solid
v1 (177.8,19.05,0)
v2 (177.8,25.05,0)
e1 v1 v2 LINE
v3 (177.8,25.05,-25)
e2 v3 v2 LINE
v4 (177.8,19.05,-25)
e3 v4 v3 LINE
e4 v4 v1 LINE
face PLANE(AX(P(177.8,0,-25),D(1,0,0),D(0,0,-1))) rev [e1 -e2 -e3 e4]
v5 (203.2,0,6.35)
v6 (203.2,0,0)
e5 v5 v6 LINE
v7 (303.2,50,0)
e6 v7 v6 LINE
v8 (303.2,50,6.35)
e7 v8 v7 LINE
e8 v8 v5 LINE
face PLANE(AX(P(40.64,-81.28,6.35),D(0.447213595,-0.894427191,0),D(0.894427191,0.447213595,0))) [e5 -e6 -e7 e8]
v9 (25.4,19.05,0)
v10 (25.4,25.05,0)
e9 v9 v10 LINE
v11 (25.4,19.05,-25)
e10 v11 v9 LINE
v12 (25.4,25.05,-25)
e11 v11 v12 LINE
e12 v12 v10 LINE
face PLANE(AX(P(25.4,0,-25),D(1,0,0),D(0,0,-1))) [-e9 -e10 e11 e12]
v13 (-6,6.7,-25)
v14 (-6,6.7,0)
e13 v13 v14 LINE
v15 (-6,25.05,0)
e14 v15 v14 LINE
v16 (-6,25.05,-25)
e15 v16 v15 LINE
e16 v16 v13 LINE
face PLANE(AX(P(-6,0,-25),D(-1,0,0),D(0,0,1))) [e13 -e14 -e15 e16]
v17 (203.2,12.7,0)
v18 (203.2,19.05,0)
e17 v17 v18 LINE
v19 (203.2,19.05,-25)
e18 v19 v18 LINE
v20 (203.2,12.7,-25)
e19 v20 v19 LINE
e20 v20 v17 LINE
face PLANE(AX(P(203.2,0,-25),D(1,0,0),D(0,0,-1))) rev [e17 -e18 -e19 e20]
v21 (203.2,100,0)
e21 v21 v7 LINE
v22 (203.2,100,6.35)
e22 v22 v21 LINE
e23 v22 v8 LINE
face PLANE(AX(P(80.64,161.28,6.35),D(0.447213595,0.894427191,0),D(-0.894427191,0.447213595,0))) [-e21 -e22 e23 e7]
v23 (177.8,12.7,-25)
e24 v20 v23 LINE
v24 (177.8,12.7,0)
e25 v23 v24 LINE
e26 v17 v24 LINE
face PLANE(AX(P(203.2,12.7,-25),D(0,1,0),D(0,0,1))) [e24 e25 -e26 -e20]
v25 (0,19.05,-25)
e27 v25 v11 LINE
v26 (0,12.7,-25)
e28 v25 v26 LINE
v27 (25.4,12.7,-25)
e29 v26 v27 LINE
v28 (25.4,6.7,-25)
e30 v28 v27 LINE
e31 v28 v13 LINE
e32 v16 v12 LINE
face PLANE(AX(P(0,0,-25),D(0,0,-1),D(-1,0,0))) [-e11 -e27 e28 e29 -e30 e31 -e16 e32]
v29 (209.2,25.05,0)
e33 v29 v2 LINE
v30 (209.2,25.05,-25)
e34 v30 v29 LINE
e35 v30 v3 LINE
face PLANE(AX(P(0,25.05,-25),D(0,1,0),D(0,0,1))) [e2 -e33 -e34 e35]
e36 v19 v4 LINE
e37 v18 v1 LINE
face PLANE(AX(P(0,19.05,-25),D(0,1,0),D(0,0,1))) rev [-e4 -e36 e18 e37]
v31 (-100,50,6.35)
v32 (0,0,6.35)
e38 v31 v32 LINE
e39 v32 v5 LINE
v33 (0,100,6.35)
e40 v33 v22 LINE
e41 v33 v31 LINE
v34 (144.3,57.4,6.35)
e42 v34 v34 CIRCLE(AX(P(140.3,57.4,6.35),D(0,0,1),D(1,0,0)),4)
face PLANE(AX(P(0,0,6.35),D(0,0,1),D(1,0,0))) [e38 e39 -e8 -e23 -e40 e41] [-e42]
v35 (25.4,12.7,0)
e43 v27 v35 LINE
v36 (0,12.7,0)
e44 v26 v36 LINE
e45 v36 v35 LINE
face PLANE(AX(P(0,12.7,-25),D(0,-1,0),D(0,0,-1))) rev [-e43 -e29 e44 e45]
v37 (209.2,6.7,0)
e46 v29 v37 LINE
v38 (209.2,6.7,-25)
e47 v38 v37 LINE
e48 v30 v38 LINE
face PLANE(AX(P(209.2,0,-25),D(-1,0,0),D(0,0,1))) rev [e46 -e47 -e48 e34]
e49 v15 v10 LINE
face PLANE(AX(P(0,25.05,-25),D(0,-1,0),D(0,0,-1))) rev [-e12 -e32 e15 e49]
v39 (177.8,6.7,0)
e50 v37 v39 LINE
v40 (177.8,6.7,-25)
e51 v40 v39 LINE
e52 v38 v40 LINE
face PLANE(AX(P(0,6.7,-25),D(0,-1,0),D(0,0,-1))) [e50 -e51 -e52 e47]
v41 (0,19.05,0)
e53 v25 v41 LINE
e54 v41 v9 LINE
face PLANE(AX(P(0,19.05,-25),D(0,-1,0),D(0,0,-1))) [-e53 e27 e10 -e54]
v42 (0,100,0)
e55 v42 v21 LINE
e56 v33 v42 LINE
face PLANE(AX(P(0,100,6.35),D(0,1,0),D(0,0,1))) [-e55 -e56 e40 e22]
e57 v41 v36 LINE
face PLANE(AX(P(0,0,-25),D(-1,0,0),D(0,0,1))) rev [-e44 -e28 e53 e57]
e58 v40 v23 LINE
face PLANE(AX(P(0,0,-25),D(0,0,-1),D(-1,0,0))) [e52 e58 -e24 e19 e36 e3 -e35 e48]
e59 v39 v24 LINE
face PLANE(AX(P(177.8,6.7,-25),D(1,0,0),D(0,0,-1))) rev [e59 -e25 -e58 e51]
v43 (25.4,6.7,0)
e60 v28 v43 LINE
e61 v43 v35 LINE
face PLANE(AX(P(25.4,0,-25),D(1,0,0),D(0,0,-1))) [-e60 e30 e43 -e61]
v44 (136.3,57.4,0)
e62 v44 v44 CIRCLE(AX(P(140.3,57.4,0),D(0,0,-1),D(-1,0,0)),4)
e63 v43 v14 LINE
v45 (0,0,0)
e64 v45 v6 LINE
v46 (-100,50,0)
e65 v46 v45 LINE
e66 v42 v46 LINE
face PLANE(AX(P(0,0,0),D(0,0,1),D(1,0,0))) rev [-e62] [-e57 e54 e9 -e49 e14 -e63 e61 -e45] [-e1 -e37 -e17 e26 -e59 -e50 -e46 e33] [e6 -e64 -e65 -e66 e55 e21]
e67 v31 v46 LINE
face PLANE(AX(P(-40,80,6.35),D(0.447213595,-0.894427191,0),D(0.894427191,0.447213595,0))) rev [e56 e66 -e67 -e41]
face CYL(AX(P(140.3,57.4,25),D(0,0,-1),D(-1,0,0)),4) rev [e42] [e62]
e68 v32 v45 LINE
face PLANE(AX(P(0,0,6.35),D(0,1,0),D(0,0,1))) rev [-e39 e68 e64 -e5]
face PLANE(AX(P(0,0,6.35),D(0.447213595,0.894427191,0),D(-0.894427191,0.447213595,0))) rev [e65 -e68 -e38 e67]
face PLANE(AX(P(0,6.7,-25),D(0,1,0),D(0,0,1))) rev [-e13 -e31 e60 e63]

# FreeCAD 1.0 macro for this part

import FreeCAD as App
import Part
import Sketcher
from FreeCAD import Vector
Q = App.Units.Quantity

doc = App.newDocument("Part")
body = doc.addObject("PartDesign::Body", "Body")

sketch1 = body.newObject("Sketcher::SketchObject", "Sketch")
sketch1.AttachmentSupport = (doc.getObject("XY_Plane"), [""])
sketch1.MapMode = "FlatFace"
sketch1.addGeometry(Part.LineSegment(Vector(0, 0, 0), Vector(203.2, 0, 0)), False)
sketch1.addGeometry(Part.LineSegment(Vector(203.2, 0, 0), Vector(303.2, 50, 0)), False)
sketch1.addGeometry(Part.LineSegment(Vector(303.2, 50, 0), Vector(203.2, 100, 0)), False)
sketch1.addGeometry(Part.LineSegment(Vector(203.2, 100, 0), Vector(0, 100, 0)), False)
sketch1.addGeometry(Part.LineSegment(Vector(0, 100, 0), Vector(-100, 50, 0)), False)
sketch1.addGeometry(Part.LineSegment(Vector(-100, 50, 0), Vector(0, 0, 0)), False)
sketch1.addConstraint(Sketcher.Constraint("Coincident", 0, 2, 1, 1))
sketch1.addConstraint(Sketcher.Constraint("Coincident", 1, 2, 2, 1))
sketch1.addConstraint(Sketcher.Constraint("Coincident", 2, 2, 3, 1))
sketch1.addConstraint(Sketcher.Constraint("Coincident", 3, 2, 4, 1))
sketch1.addConstraint(Sketcher.Constraint("Coincident", 4, 2, 5, 1))
sketch1.addConstraint(Sketcher.Constraint("Coincident", 5, 2, 0, 1))
sketch1.addConstraint(Sketcher.Constraint("Horizontal", 0))
sketch1.addConstraint(Sketcher.Constraint("Horizontal", 3))
sketch1.addConstraint(Sketcher.Constraint("Coincident", 5, 2, -1, 1))
sketch1.addConstraint(Sketcher.Constraint("PointOnObject", 3, 2, -2))
sketch1.addConstraint(Sketcher.Constraint("Parallel", 1, 4))
sketch1.addConstraint(Sketcher.Constraint("Parallel", 2, 5))
sketch1.addConstraint(Sketcher.Constraint("Horizontal", 1, 2, 4, 2))
sketch1.addConstraint(Sketcher.Constraint("Vertical", 0, 2, 2, 2))
sketch1.addConstraint(Sketcher.Constraint("DistanceX", 0, 1, 0, 2, Q("203.2 mm")))
sketch1.addConstraint(Sketcher.Constraint("DistanceY", -1, 1, 1, 2, Q("50 mm")))
sketch1.addConstraint(Sketcher.Constraint("DistanceX", 4, 2, -1, 1, Q("100 mm")))
pad1 = body.newObject("PartDesign::Pad", "Pad")
pad1.Profile = sketch1
pad1.Length = 6.35

sketch2 = body.newObject("Sketcher::SketchObject", "Sketch001")
sketch2.AttachmentSupport = (doc.getObject("XY_Plane"), [""])
sketch2.MapMode = "FlatFace"
sketch2.addGeometry(Part.LineSegment(Vector(177.8, 12.7, 0), Vector(203.2, 12.7, 0)), False)
sketch2.addGeometry(Part.LineSegment(Vector(203.2, 12.7, 0), Vector(203.2, 19.05, 0)), False)
sketch2.addGeometry(Part.LineSegment(Vector(203.2, 19.05, 0), Vector(177.8, 19.05, 0)), False)
sketch2.addGeometry(Part.LineSegment(Vector(177.8, 19.05, 0), Vector(177.8, 25.05, 0)), False)
sketch2.addGeometry(Part.LineSegment(Vector(177.8, 25.05, 0), Vector(209.2, 25.05, 0)), False)
sketch2.addGeometry(Part.LineSegment(Vector(209.2, 25.05, 0), Vector(209.2, 6.7, 0)), False)
sketch2.addGeometry(Part.LineSegment(Vector(209.2, 6.7, 0), Vector(177.8, 6.7, 0)), False)
sketch2.addGeometry(Part.LineSegment(Vector(177.8, 6.7, 0), Vector(177.8, 12.7, 0)), False)
sketch2.addGeometry(Part.LineSegment(Vector(-6, 6.7, 0), Vector(-6, 25.05, 0)), False)
sketch2.addGeometry(Part.LineSegment(Vector(-6, 25.05, 0), Vector(25.4, 25.05, 0)), False)
sketch2.addGeometry(Part.LineSegment(Vector(25.4, 25.05, 0), Vector(25.4, 19.05, 0)), False)
sketch2.addGeometry(Part.LineSegment(Vector(25.4, 19.05, 0), Vector(0, 19.05, 0)), False)
sketch2.addGeometry(Part.LineSegment(Vector(0, 19.05, 0), Vector(0, 12.7, 0)), False)
sketch2.addGeometry(Part.LineSegment(Vector(0, 12.7, 0), Vector(25.4, 12.7, 0)), False)
sketch2.addGeometry(Part.LineSegment(Vector(25.4, 12.7, 0), Vector(25.4, 6.7, 0)), False)
sketch2.addGeometry(Part.LineSegment(Vector(25.4, 6.7, 0), Vector(-6, 6.7, 0)), False)
sketch2.addConstraint(Sketcher.Constraint("Coincident", 0, 2, 1, 1))
sketch2.addConstraint(Sketcher.Constraint("Coincident", 1, 2, 2, 1))
sketch2.addConstraint(Sketcher.Constraint("Coincident", 2, 2, 3, 1))
sketch2.addConstraint(Sketcher.Constraint("Coincident", 3, 2, 4, 1))
sketch2.addConstraint(Sketcher.Constraint("Coincident", 4, 2, 5, 1))
sketch2.addConstraint(Sketcher.Constraint("Coincident", 5, 2, 6, 1))
sketch2.addConstraint(Sketcher.Constraint("Coincident", 6, 2, 7, 1))
sketch2.addConstraint(Sketcher.Constraint("Coincident", 7, 2, 0, 1))
sketch2.addConstraint(Sketcher.Constraint("Coincident", 8, 2, 9, 1))
sketch2.addConstraint(Sketcher.Constraint("Coincident", 9, 2, 10, 1))
sketch2.addConstraint(Sketcher.Constraint("Coincident", 10, 2, 11, 1))
sketch2.addConstraint(Sketcher.Constraint("Coincident", 11, 2, 12, 1))
sketch2.addConstraint(Sketcher.Constraint("Coincident", 12, 2, 13, 1))
sketch2.addConstraint(Sketcher.Constraint("Coincident", 13, 2, 14, 1))
sketch2.addConstraint(Sketcher.Constraint("Coincident", 14, 2, 15, 1))
sketch2.addConstraint(Sketcher.Constraint("Coincident", 15, 2, 8, 1))
sketch2.addConstraint(Sketcher.Constraint("Horizontal", 0))
sketch2.addConstraint(Sketcher.Constraint("Vertical", 1))
sketch2.addConstraint(Sketcher.Constraint("Horizontal", 2))
sketch2.addConstraint(Sketcher.Constraint("Vertical", 3))
sketch2.addConstraint(Sketcher.Constraint("Horizontal", 4))
sketch2.addConstraint(Sketcher.Constraint("Vertical", 5))
sketch2.addConstraint(Sketcher.Constraint("Horizontal", 6))
sketch2.addConstraint(Sketcher.Constraint("Vertical", 7))
sketch2.addConstraint(Sketcher.Constraint("Vertical", 8))
sketch2.addConstraint(Sketcher.Constraint("Horizontal", 9))
sketch2.addConstraint(Sketcher.Constraint("Vertical", 10))
sketch2.addConstraint(Sketcher.Constraint("Horizontal", 11))
sketch2.addConstraint(Sketcher.Constraint("Vertical", 12))
sketch2.addConstraint(Sketcher.Constraint("Horizontal", 13))
sketch2.addConstraint(Sketcher.Constraint("Vertical", 14))
sketch2.addConstraint(Sketcher.Constraint("Horizontal", 15))
sketch2.addConstraint(Sketcher.Constraint("PointOnObject", 11, 2, -2))
sketch2.addConstraint(Sketcher.Constraint("Horizontal", 4, 2, 8, 2))
sketch2.addConstraint(Sketcher.Constraint("Horizontal", 2, 2, 10, 2))
sketch2.addConstraint(Sketcher.Constraint("Horizontal", 7, 2, 12, 2))
sketch2.addConstraint(Sketcher.Constraint("Horizontal", 6, 2, 14, 2))
sketch2.addConstraint(Sketcher.Constraint("Vertical", 3, 2, 6, 2))
sketch2.addConstraint(Sketcher.Constraint("Vertical", 10, 2, 13, 2))
sketch2.addConstraint(Sketcher.Constraint("Equal", 6, 9))
sketch2.addConstraint(Sketcher.Constraint("Equal", 2, 11))
sketch2.addConstraint(Sketcher.Constraint("Equal", 3, 7))
sketch2.addConstraint(Sketcher.Constraint("DistanceY", 3, 1, 3, 2, Q("6 mm")))
sketch2.addConstraint(Sketcher.Constraint("DistanceX", 0, 1, 0, 2, Q("25.4 mm")))
sketch2.addConstraint(Sketcher.Constraint("DistanceX", 4, 1, 4, 2, Q("31.4 mm")))
sketch2.addConstraint(Sketcher.Constraint("DistanceY", 1, 1, 1, 2, Q("6.35 mm")))
sketch2.addConstraint(Sketcher.Constraint("DistanceX", -1, 1, 0, 2, Q("203.2 mm")))
sketch2.addConstraint(Sketcher.Constraint("DistanceY", -1, 1, 0, 2, Q("12.7 mm")))
pad2 = body.newObject("PartDesign::Pad", "Pad001")
pad2.Profile = sketch2
pad2.Length = 25
pad2.Reversed = True

sketch3 = body.newObject("Sketcher::SketchObject", "Sketch002")
sketch3.AttachmentSupport = (doc.getObject("XY_Plane"), [""])
sketch3.MapMode = "FlatFace"
sketch3.addGeometry(Part.Circle(Vector(140.3, 57.4, 0), Vector(0, 0, 1), 4), False)
sketch3.addConstraint(Sketcher.Constraint("Diameter", 0, Q("8 mm")))
sketch3.addConstraint(Sketcher.Constraint("DistanceX", -1, 1, 0, 3, Q("140.3 mm")))
sketch3.addConstraint(Sketcher.Constraint("DistanceY", -1, 1, 0, 3, Q("57.4 mm")))
pocket1 = body.newObject("PartDesign::Pocket", "Pocket")
pocket1.Profile = sketch3
pocket1.Length = 25
pocket1.Reversed = True

doc.recompute()
